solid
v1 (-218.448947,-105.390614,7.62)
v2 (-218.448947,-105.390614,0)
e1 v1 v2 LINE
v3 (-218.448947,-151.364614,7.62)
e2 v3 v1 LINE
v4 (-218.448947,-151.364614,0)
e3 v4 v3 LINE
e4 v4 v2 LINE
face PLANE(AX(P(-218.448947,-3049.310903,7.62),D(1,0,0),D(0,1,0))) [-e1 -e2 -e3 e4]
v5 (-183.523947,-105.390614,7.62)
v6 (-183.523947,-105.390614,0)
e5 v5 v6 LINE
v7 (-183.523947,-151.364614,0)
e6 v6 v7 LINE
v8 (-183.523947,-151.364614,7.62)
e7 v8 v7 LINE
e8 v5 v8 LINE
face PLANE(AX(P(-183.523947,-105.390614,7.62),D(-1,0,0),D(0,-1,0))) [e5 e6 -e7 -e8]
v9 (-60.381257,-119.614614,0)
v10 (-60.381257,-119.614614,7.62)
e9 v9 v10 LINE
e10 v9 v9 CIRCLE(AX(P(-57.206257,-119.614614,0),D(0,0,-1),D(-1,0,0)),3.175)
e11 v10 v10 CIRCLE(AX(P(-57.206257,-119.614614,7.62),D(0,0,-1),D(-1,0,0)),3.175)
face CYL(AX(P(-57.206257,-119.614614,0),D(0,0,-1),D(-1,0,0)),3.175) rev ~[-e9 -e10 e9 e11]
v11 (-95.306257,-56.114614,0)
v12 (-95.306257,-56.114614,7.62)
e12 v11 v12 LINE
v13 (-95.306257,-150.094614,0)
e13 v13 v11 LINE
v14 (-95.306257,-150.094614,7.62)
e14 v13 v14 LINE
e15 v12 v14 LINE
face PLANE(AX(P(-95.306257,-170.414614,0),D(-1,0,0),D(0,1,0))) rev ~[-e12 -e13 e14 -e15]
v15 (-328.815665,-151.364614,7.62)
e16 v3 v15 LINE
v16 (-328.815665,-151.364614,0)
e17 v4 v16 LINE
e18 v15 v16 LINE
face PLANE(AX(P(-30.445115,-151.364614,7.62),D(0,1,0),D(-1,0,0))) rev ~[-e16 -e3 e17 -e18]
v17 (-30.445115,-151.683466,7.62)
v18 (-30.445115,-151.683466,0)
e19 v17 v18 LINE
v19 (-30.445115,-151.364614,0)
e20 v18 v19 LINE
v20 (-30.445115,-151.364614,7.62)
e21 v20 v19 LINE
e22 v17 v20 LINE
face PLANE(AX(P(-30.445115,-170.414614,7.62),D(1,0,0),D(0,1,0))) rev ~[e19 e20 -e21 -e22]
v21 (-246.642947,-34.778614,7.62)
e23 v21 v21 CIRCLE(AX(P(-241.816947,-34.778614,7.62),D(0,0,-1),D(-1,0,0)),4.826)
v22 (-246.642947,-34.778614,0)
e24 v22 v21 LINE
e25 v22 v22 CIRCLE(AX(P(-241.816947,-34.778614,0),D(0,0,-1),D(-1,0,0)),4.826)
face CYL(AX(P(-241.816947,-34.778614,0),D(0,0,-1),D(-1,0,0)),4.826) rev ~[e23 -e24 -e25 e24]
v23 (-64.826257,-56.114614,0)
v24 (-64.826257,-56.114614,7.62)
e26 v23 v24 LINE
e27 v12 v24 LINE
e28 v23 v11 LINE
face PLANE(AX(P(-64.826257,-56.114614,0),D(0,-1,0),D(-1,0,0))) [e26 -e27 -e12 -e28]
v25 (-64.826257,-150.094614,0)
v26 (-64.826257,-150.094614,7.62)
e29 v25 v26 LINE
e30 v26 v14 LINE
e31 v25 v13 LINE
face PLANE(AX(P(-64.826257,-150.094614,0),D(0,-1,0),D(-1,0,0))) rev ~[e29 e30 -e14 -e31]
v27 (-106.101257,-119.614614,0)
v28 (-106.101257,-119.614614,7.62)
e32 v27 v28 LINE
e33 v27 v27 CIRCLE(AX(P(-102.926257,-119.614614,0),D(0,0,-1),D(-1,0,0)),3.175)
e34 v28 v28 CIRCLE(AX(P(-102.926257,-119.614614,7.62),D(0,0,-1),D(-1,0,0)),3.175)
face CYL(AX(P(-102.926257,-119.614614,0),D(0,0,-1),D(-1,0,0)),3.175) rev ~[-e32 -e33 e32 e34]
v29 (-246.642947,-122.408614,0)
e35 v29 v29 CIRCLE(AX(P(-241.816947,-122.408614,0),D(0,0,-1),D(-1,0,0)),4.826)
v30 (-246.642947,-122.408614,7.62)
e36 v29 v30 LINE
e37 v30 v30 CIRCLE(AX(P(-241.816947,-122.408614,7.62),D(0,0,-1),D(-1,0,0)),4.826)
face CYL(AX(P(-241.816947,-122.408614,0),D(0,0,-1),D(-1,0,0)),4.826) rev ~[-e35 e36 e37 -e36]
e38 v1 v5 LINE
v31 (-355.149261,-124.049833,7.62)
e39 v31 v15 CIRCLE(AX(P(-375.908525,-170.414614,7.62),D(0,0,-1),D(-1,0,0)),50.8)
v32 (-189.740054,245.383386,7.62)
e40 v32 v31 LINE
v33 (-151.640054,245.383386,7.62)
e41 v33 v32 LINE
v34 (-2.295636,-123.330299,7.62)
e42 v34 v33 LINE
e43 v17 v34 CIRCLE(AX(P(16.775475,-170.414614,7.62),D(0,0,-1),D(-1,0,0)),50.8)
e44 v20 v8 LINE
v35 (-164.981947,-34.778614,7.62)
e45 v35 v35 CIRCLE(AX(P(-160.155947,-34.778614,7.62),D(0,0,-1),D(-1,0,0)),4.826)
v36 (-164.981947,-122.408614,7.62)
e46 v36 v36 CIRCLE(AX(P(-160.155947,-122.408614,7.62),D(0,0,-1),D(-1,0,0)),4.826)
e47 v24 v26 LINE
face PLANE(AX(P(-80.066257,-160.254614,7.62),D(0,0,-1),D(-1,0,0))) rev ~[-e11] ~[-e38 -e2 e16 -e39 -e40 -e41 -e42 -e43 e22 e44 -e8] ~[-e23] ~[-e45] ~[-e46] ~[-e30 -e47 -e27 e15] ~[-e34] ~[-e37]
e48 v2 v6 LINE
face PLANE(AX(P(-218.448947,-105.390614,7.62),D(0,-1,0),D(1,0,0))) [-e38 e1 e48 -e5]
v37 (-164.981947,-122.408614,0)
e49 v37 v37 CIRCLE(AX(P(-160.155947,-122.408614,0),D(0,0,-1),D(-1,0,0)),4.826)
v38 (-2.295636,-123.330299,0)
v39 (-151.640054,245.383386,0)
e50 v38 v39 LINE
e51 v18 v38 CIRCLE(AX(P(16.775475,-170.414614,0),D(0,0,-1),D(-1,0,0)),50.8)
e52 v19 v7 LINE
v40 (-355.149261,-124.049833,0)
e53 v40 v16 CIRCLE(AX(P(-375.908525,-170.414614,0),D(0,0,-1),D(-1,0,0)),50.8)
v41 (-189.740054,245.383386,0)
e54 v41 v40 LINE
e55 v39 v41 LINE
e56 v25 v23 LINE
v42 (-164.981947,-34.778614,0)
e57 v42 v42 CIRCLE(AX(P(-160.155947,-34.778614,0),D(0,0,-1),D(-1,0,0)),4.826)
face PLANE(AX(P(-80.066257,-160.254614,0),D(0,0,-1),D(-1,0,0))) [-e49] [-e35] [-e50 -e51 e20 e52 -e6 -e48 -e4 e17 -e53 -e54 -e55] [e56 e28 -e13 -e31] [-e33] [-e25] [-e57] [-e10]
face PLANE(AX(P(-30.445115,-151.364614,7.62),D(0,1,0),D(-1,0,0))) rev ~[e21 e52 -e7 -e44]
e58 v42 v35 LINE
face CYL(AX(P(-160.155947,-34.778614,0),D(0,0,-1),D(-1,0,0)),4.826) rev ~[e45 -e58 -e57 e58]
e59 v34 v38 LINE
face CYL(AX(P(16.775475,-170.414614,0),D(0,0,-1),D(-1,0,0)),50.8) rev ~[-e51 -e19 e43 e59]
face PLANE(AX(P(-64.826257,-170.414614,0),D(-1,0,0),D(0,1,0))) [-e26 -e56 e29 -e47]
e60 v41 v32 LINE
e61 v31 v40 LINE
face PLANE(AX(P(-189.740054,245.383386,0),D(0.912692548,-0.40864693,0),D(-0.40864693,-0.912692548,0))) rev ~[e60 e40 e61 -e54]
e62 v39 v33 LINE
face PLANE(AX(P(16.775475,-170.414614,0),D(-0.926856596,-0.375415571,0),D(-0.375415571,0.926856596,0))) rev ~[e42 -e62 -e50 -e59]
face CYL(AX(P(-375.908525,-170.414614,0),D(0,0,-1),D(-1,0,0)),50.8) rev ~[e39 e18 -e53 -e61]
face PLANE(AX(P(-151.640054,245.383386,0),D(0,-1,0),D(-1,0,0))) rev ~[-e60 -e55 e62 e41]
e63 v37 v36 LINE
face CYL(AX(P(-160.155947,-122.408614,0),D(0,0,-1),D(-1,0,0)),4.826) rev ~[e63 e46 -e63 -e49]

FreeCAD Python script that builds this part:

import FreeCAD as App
import Part
import Sketcher

V = App.Vector
Q = App.Units.Quantity

doc = App.newDocument("Part")
body = doc.addObject("PartDesign::Body", "Body")

# Sketch on XY plane
sketch1 = body.newObject("Sketcher::SketchObject", "Sketch")
sketch1.AttachmentSupport = (doc.getObject("XY_Plane"), [""])
sketch1.MapMode = "FlatFace"
sketch1.addGeometry(Part.LineSegment(V(-190, 245, 0), V(-376, -170, 0)), False)
sketch1.addGeometry(Part.LineSegment(V(-376, -170, 0), V(17, -170, 0)), False)
sketch1.addGeometry(Part.LineSegment(V(17, -170, 0), V(-152, 245, 0)), False)
sketch1.addGeometry(Part.LineSegment(V(-152, 245, 0), V(-190, 245, 0)), False)
sketch1.addConstraint(Sketcher.Constraint("Coincident", 0, 2, 1, 1))
sketch1.addConstraint(Sketcher.Constraint("Coincident", 1, 2, 2, 1))
sketch1.addConstraint(Sketcher.Constraint("Coincident", 2, 2, 3, 1))
sketch1.addConstraint(Sketcher.Constraint("Coincident", 3, 2, 0, 1))
sketch1.addConstraint(Sketcher.Constraint("Horizontal", 1))
sketch1.addConstraint(Sketcher.Constraint("Horizontal", 3))
sketch1.addConstraint(Sketcher.Constraint("DistanceX", 3, 2, 3, 1, Q("1.5 in")))
sketch1.addConstraint(Sketcher.Constraint("DistanceX", 1, 1, 1, 2, Q("15.46 in")))
sketch1.addConstraint(Sketcher.Constraint("Angle", 2, Q("112.05 deg")))
sketch1.addConstraint(Sketcher.Constraint("DistanceY", 1, 2, 2, 2, Q("16.37 in")))
sketch1.addConstraint(Sketcher.Constraint("DistanceX", 0, 2, -1, 1, 375.908525))
sketch1.addConstraint(Sketcher.Constraint("DistanceY", 0, 2, -1, 1, 170.414614))
pad1 = body.newObject("PartDesign::Pad", "Pad")
pad1.Profile = sketch1
pad1.Length = Q("0.3 in")

# Sketch on XY plane
sketch2 = body.newObject("Sketcher::SketchObject", "Sketch001")
sketch2.AttachmentSupport = (doc.getObject("XY_Plane"), [""])
sketch2.MapMode = "FlatFace"
sketch2.addGeometry(Part.Circle(V(-376, -170, 0), V(0, 0, 1), 16), False)
sketch2.addConstraint(Sketcher.Constraint("Diameter", 0, Q("1.25 in")))
sketch2.addConstraint(Sketcher.Constraint("DistanceX", 0, 3, -1, 1, 375.908525))
sketch2.addConstraint(Sketcher.Constraint("DistanceY", 0, 3, -1, 1, 170.414614))
pocket1 = body.newObject("PartDesign::Pocket", "Pocket")
pocket1.Profile = sketch2
pocket1.Length = Q("2 in")
pocket1.Reversed = True

# Sketch on XY plane
sketch3 = body.newObject("Sketcher::SketchObject", "Sketch002")
sketch3.AttachmentSupport = (doc.getObject("XY_Plane"), [""])
sketch3.MapMode = "FlatFace"
sketch3.addGeometry(Part.Circle(V(17, -170, 0), V(0, 0, 1), 16), False)
sketch3.addConstraint(Sketcher.Constraint("Diameter", 0, Q("1.25 in")))
sketch3.addConstraint(Sketcher.Constraint("DistanceX", -1, 1, 0, 3, 16.775475))
sketch3.addConstraint(Sketcher.Constraint("DistanceY", 0, 3, -1, 1, 170.414614))
pocket2 = body.newObject("PartDesign::Pocket", "Pocket001")
pocket2.Profile = sketch3
pocket2.Length = Q("2 in")
pocket2.Reversed = True

# Sketch on XY plane
sketch4 = body.newObject("Sketcher::SketchObject", "Sketch003")
sketch4.AttachmentSupport = (doc.getObject("XY_Plane"), [""])
sketch4.MapMode = "FlatFace"
sketch4.addGeometry(Part.LineSegment(V(-218, -105, 0), V(-184, -105, 0)), False)
sketch4.addGeometry(Part.LineSegment(V(-184, -105, 0), V(-184, -3049, 0)), False)
sketch4.addGeometry(Part.LineSegment(V(-184, -3049, 0), V(-218, -3049, 0)), False)
sketch4.addGeometry(Part.LineSegment(V(-218, -3049, 0), V(-218, -105, 0)), False)
sketch4.addConstraint(Sketcher.Constraint("Coincident", 0, 2, 1, 1))
sketch4.addConstraint(Sketcher.Constraint("Coincident", 1, 2, 2, 1))
sketch4.addConstraint(Sketcher.Constraint("Coincident", 2, 2, 3, 1))
sketch4.addConstraint(Sketcher.Constraint("Coincident", 3, 2, 0, 1))
sketch4.addConstraint(Sketcher.Constraint("Horizontal", 0))
sketch4.addConstraint(Sketcher.Constraint("Vertical", 1))
sketch4.addConstraint(Sketcher.Constraint("Horizontal", 2))
sketch4.addConstraint(Sketcher.Constraint("Vertical", 3))
sketch4.addConstraint(Sketcher.Constraint("DistanceX", 0, 1, 0, 2, Q("1.375 in")))
sketch4.addConstraint(Sketcher.Constraint("DistanceY", 1, 2, 1, 1, 2943.920288))
sketch4.addConstraint(Sketcher.Constraint("DistanceX", 0, 2, -1, 1, 183.523947))
sketch4.addConstraint(Sketcher.Constraint("DistanceY", 0, 2, -1, 1, 105.390614))
pocket3 = body.newObject("PartDesign::Pocket", "Pocket002")
pocket3.Profile = sketch4
pocket3.Type = "ThroughAll"
pocket3.Midplane = True

# Sketch on XY plane
sketch5 = body.newObject("Sketcher::SketchObject", "Sketch004")
sketch5.AttachmentSupport = (doc.getObject("XY_Plane"), [""])
sketch5.MapMode = "FlatFace"
sketch5.addGeometry(Part.Circle(V(-160.2, -122.4, 0), V(0, 0, 1), 4.8), False)
sketch5.addConstraint(Sketcher.Constraint("Diameter", 0, Q("0.38 in")))
sketch5.addConstraint(Sketcher.Constraint("DistanceX", 0, 3, -1, 1, 160.155947))
sketch5.addConstraint(Sketcher.Constraint("DistanceY", 0, 3, -1, 1, 122.408614))
pocket4 = body.newObject("PartDesign::Pocket", "Pocket003")
pocket4.Profile = sketch5
pocket4.Type = "UpToFirst"
pocket4.Reversed = True

# Sketch on XY plane
sketch6 = body.newObject("Sketcher::SketchObject", "Sketch005")
sketch6.AttachmentSupport = (doc.getObject("XY_Plane"), [""])
sketch6.MapMode = "FlatFace"
sketch6.addGeometry(Part.Circle(V(-241.8, -122.4, 0), V(0, 0, 1), 4.8), False)
sketch6.addConstraint(Sketcher.Constraint("Diameter", 0, Q("0.38 in")))
sketch6.addConstraint(Sketcher.Constraint("DistanceX", 0, 3, -1, 1, 241.816947))
sketch6.addConstraint(Sketcher.Constraint("DistanceY", 0, 3, -1, 1, 122.408614))
pocket5 = body.newObject("PartDesign::Pocket", "Pocket004")
pocket5.Profile = sketch6
pocket5.Type = "UpToFirst"
pocket5.Reversed = True

# Sketch on XY plane
sketch7 = body.newObject("Sketcher::SketchObject", "Sketch006")
sketch7.AttachmentSupport = (doc.getObject("XY_Plane"), [""])
sketch7.MapMode = "FlatFace"
sketch7.addGeometry(Part.LineSegment(V(-65, -56, 0), V(-65, -170, 0)), False)
sketch7.addGeometry(Part.LineSegment(V(-65, -170, 0), V(-95, -170, 0)), False)
sketch7.addGeometry(Part.LineSegment(V(-95, -170, 0), V(-95, -56, 0)), False)
sketch7.addGeometry(Part.LineSegment(V(-95, -56, 0), V(-65, -56, 0)), False)
sketch7.addConstraint(Sketcher.Constraint("Coincident", 0, 2, 1, 1))
sketch7.addConstraint(Sketcher.Constraint("Coincident", 1, 2, 2, 1))
sketch7.addConstraint(Sketcher.Constraint("Coincident", 2, 2, 3, 1))
sketch7.addConstraint(Sketcher.Constraint("Coincident", 3, 2, 0, 1))
sketch7.addConstraint(Sketcher.Constraint("Vertical", 0))
sketch7.addConstraint(Sketcher.Constraint("Horizontal", 1))
sketch7.addConstraint(Sketcher.Constraint("Vertical", 2))
sketch7.addConstraint(Sketcher.Constraint("Horizontal", 3))
sketch7.addConstraint(Sketcher.Constraint("DistanceX", 1, 2, 1, 1, Q("1.2 in")))
sketch7.addConstraint(Sketcher.Constraint("DistanceY", 0, 2, 0, 1, Q("4.5 in")))
sketch7.addConstraint(Sketcher.Constraint("DistanceX", 0, 2, -1, 1, 64.826257))
sketch7.addConstraint(Sketcher.Constraint("DistanceY", 0, 2, -1, 1, 170.414614))
pocket6 = body.newObject("PartDesign::Pocket", "Pocket005")
pocket6.Profile = sketch7
pocket6.Length = Q("1 in")
pocket6.Reversed = True

# Sketch on XY plane
sketch8 = body.newObject("Sketcher::SketchObject", "Sketch007")
sketch8.AttachmentSupport = (doc.getObject("XY_Plane"), [""])
sketch8.MapMode = "FlatFace"
sketch8.addGeometry(Part.Circle(V(17, -170, 0), V(0, 0, 1), 51), False)
sketch8.addConstraint(Sketcher.Constraint("Diameter", 0, Q("4 in")))
sketch8.addConstraint(Sketcher.Constraint("DistanceX", -1, 1, 0, 3, 16.775475))
sketch8.addConstraint(Sketcher.Constraint("DistanceY", 0, 3, -1, 1, 170.414614))
pocket7 = body.newObject("PartDesign::Pocket", "Pocket006")
pocket7.Profile = sketch8
pocket7.Length = Q("0.3 in")
pocket7.Reversed = True

# Sketch on XY plane
sketch9 = body.newObject("Sketcher::SketchObject", "Sketch008")
sketch9.AttachmentSupport = (doc.getObject("XY_Plane"), [""])
sketch9.MapMode = "FlatFace"
sketch9.addGeometry(Part.Circle(V(-376, -170, 0), V(0, 0, 1), 51), False)
sketch9.addConstraint(Sketcher.Constraint("Diameter", 0, Q("4 in")))
sketch9.addConstraint(Sketcher.Constraint("DistanceX", 0, 3, -1, 1, 375.908525))
sketch9.addConstraint(Sketcher.Constraint("DistanceY", 0, 3, -1, 1, 170.414614))
pocket8 = body.newObject("PartDesign::Pocket", "Pocket007")
pocket8.Profile = sketch9
pocket8.Length = Q("0.3 in")
pocket8.Reversed = True

# Sketch on XY plane
sketch10 = body.newObject("Sketcher::SketchObject", "Sketch009")
sketch10.AttachmentSupport = (doc.getObject("XY_Plane"), [""])
sketch10.MapMode = "FlatFace"
sketch10.addGeometry(Part.LineSegment(V(-65, -150, 0), V(-65, -170, 0)), False)
sketch10.addGeometry(Part.LineSegment(V(-65, -170, 0), V(-95, -170, 0)), False)
sketch10.addGeometry(Part.LineSegment(V(-95, -170, 0), V(-95, -150, 0)), False)
sketch10.addGeometry(Part.LineSegment(V(-95, -150, 0), V(-65, -150, 0)), False)
sketch10.addConstraint(Sketcher.Constraint("Coincident", 0, 2, 1, 1))
sketch10.addConstraint(Sketcher.Constraint("Coincident", 1, 2, 2, 1))
sketch10.addConstraint(Sketcher.Constraint("Coincident", 2, 2, 3, 1))
sketch10.addConstraint(Sketcher.Constraint("Coincident", 3, 2, 0, 1))
sketch10.addConstraint(Sketcher.Constraint("Vertical", 0))
sketch10.addConstraint(Sketcher.Constraint("Horizontal", 1))
sketch10.addConstraint(Sketcher.Constraint("Vertical", 2))
sketch10.addConstraint(Sketcher.Constraint("Horizontal", 3))
sketch10.addConstraint(Sketcher.Constraint("DistanceX", 1, 2, 1, 1, Q("1.2 in")))
sketch10.addConstraint(Sketcher.Constraint("DistanceY", 0, 2, 0, 1, Q("0.8 in")))
sketch10.addConstraint(Sketcher.Constraint("DistanceX", 0, 2, -1, 1, 64.826257))
sketch10.addConstraint(Sketcher.Constraint("DistanceY", 0, 2, -1, 1, 170.414614))
pad2 = body.newObject("PartDesign::Pad", "Pad001")
pad2.Profile = sketch10
pad2.Length = Q("0.3 in")

# Sketch on XY plane
sketch11 = body.newObject("Sketcher::SketchObject", "Sketch010")
sketch11.AttachmentSupport = (doc.getObject("XY_Plane"), [""])
sketch11.MapMode = "FlatFace"
sketch11.addGeometry(Part.Circle(V(-57.2, -119.6, 0), V(0, 0, 1), 3.2), False)
sketch11.addConstraint(Sketcher.Constraint("Diameter", 0, Q("0.25 in")))
sketch11.addConstraint(Sketcher.Constraint("DistanceX", 0, 3, -1, 1, 57.206257))
sketch11.addConstraint(Sketcher.Constraint("DistanceY", 0, 3, -1, 1, 119.614614))
pocket9 = body.newObject("PartDesign::Pocket", "Pocket008")
pocket9.Profile = sketch11
pocket9.Type = "UpToFirst"
pocket9.Reversed = True

# Sketch on XY plane
sketch12 = body.newObject("Sketcher::SketchObject", "Sketch011")
sketch12.AttachmentSupport = (doc.getObject("XY_Plane"), [""])
sketch12.MapMode = "FlatFace"
sketch12.addGeometry(Part.Circle(V(-102.9, -119.6, 0), V(0, 0, 1), 3.2), False)
sketch12.addConstraint(Sketcher.Constraint("Diameter", 0, Q("0.25 in")))
sketch12.addConstraint(Sketcher.Constraint("DistanceX", 0, 3, -1, 1, 102.926257))
sketch12.addConstraint(Sketcher.Constraint("DistanceY", 0, 3, -1, 1, 119.614614))
pocket10 = body.newObject("PartDesign::Pocket", "Pocket009")
pocket10.Profile = sketch12
pocket10.Type = "UpToFirst"
pocket10.Reversed = True

# Sketch on XY plane
sketch13 = body.newObject("Sketcher::SketchObject", "Sketch012")
sketch13.AttachmentSupport = (doc.getObject("XY_Plane"), [""])
sketch13.MapMode = "FlatFace"
sketch13.AttachmentOffset = App.Placement(V(0, 0, 0.3 * 25.4), App.Rotation())
sketch13.addGeometry(Part.LineSegment(V(-30, -151, 0), V(-30, -170, 0)), False)
sketch13.addGeometry(Part.LineSegment(V(-30, -170, 0), V(-331, -170, 0)), False)
sketch13.addGeometry(Part.LineSegment(V(-331, -170, 0), V(-331, -151, 0)), False)
sketch13.addGeometry(Part.LineSegment(V(-331, -151, 0), V(-30, -151, 0)), False)
sketch13.addConstraint(Sketcher.Constraint("Coincident", 0, 2, 1, 1))
sketch13.addConstraint(Sketcher.Constraint("Coincident", 1, 2, 2, 1))
sketch13.addConstraint(Sketcher.Constraint("Coincident", 2, 2, 3, 1))
sketch13.addConstraint(Sketcher.Constraint("Coincident", 3, 2, 0, 1))
sketch13.addConstraint(Sketcher.Constraint("Vertical", 0))
sketch13.addConstraint(Sketcher.Constraint("Horizontal", 1))
sketch13.addConstraint(Sketcher.Constraint("Vertical", 2))
sketch13.addConstraint(Sketcher.Constraint("Horizontal", 3))
sketch13.addConstraint(Sketcher.Constraint("DistanceY", 0, 2, 0, 1, Q("0.75 in")))
sketch13.addConstraint(Sketcher.Constraint("DistanceX", 1, 2, 1, 1, 300.609515))
sketch13.addConstraint(Sketcher.Constraint("DistanceX", 1, 2, -1, 1, 331.05463))
sketch13.addConstraint(Sketcher.Constraint("DistanceY", 0, 2, -1, 1, 170.414614))
pocket11 = body.newObject("PartDesign::Pocket", "Pocket010")
pocket11.Profile = sketch13
pocket11.Length = Q("0.3 in")

# Sketch on XY plane
sketch14 = body.newObject("Sketcher::SketchObject", "Sketch013")
sketch14.AttachmentSupport = (doc.getObject("XY_Plane"), [""])
sketch14.MapMode = "FlatFace"
sketch14.addGeometry(Part.Circle(V(-241.8, -34.8, 0), V(0, 0, 1), 4.8), False)
sketch14.addConstraint(Sketcher.Constraint("Diameter", 0, Q("0.38 in")))
sketch14.addConstraint(Sketcher.Constraint("DistanceX", 0, 3, -1, 1, 241.816947))
sketch14.addConstraint(Sketcher.Constraint("DistanceY", 0, 3, -1, 1, 34.778614))
pocket12 = body.newObject("PartDesign::Pocket", "Pocket011")
pocket12.Profile = sketch14
pocket12.Type = "UpToFirst"
pocket12.Reversed = True

# Sketch on XY plane
sketch15 = body.newObject("Sketcher::SketchObject", "Sketch014")
sketch15.AttachmentSupport = (doc.getObject("XY_Plane"), [""])
sketch15.MapMode = "FlatFace"
sketch15.addGeometry(Part.Circle(V(-160.2, -34.8, 0), V(0, 0, 1), 4.8), False)
sketch15.addConstraint(Sketcher.Constraint("Diameter", 0, Q("0.38 in")))
sketch15.addConstraint(Sketcher.Constraint("DistanceX", 0, 3, -1, 1, 160.155947))
sketch15.addConstraint(Sketcher.Constraint("DistanceY", 0, 3, -1, 1, 34.778614))
pocket13 = body.newObject("PartDesign::Pocket", "Pocket012")
pocket13.Profile = sketch15
pocket13.Type = "UpToFirst"
pocket13.Reversed = True

doc.recompute()
